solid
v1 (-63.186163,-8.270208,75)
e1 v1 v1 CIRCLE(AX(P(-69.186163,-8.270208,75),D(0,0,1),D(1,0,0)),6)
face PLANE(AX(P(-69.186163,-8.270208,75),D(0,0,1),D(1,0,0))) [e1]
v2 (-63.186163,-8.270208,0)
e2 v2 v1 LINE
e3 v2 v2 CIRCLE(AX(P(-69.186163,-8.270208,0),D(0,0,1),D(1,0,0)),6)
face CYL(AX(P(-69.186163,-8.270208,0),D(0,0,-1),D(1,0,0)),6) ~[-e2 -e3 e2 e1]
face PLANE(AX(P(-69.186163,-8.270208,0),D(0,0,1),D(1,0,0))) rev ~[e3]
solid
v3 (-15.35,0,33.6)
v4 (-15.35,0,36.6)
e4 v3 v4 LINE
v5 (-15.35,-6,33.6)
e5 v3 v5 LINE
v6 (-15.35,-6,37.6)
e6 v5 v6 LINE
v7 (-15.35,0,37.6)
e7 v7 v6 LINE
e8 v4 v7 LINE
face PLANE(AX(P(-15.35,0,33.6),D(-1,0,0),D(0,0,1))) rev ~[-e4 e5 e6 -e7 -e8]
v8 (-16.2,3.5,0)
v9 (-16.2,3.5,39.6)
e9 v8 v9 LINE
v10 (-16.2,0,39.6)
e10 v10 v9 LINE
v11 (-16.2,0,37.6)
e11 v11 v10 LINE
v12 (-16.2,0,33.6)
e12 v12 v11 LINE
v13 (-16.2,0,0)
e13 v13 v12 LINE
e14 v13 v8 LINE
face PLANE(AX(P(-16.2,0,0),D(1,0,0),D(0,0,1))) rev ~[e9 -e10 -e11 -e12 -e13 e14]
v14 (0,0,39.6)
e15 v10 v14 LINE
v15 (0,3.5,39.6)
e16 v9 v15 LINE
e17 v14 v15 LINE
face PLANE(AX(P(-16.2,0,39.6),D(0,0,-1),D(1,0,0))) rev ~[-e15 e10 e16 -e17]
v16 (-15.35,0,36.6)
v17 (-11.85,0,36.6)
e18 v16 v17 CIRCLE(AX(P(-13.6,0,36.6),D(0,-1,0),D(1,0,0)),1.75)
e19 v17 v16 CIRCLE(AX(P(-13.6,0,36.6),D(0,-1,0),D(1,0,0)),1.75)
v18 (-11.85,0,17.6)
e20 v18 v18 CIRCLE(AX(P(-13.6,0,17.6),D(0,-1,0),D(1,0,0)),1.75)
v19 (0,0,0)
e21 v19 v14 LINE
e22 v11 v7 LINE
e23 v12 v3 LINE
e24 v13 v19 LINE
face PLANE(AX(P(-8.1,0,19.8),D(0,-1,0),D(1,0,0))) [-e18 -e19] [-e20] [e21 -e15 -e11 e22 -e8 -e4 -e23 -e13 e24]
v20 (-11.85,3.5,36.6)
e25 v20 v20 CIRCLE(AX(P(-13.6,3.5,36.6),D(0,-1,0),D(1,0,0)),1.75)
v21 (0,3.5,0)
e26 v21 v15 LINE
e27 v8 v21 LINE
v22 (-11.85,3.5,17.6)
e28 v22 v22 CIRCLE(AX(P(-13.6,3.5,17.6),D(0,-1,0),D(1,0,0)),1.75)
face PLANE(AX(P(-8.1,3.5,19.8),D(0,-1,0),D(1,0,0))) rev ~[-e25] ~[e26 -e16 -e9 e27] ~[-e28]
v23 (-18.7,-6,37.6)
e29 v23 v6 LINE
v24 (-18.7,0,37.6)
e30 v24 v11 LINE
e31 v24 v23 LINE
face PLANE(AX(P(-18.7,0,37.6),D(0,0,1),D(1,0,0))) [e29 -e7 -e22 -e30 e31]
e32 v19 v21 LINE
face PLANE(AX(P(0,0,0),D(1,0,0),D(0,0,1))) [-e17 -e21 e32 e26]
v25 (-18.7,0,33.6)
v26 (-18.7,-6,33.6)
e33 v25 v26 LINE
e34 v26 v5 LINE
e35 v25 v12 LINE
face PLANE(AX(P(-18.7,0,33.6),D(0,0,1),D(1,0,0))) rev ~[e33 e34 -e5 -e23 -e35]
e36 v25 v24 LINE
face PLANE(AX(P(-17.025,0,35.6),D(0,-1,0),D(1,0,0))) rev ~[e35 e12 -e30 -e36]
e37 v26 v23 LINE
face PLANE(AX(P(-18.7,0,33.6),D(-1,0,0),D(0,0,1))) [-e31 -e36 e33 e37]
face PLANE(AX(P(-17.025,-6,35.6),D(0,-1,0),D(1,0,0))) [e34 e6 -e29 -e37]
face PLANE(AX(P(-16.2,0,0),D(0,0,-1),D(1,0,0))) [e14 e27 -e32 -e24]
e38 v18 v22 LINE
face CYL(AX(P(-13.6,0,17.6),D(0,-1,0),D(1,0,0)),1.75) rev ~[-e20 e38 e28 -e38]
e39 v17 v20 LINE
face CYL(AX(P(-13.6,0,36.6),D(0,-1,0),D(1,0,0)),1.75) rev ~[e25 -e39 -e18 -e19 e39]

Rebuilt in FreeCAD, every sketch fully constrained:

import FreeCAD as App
import Part
import Sketcher
from FreeCAD import Vector


def add_polygon(sketch, points):
    """Adds a closed chain of lines whose ends are joined by coincident constraints."""
    first, n = sketch.GeometryCount, len(points)
    for a, b in zip(points, points[1:] + points[:1]):
        sketch.addGeometry(Part.LineSegment(App.Vector(*a, 0), App.Vector(*b, 0)), False)
    for i in range(n):
        sketch.addConstraint(Sketcher.Constraint("Coincident", first + i, 2, first + (i + 1) % n, 1))

doc = App.newDocument("Part")
body = doc.addObject("PartDesign::Body", "Body")

# Sketch on XY plane
sketch1 = body.newObject("Sketcher::SketchObject", "Sketch")
sketch1.AttachmentSupport = (doc.getObject("XY_Plane"), [""])
sketch1.MapMode = "FlatFace"
sketch1.addGeometry(Part.Circle(Vector(-69, -8, 0), Vector(0, 0, 1), 6), False)
sketch1.addConstraint(Sketcher.Constraint("Diameter", 0, 12.0))
sketch1.addConstraint(Sketcher.Constraint("DistanceX", 0, 3, -1, 1, 69.186163))
sketch1.addConstraint(Sketcher.Constraint("DistanceY", 0, 3, -1, 1, 8.270208))
pad1 = body.newObject("PartDesign::Pad", "Pad")
pad1.Profile = sketch1
pad1.Length = 75
body2 = doc.addObject("PartDesign::Body", "Body001")

# Sketch on XZ plane
sketch2 = body2.newObject("Sketcher::SketchObject", "Sketch001")
sketch2.AttachmentSupport = (doc.getObject("XZ_Plane001"), [""])
sketch2.MapMode = "FlatFace"
add_polygon(sketch2, [(-16.2, 39.6), (-16.2, 0), (0, 0), (0, 39.6)])  # lines 0-3
sketch2.addGeometry(Part.Circle(Vector(-13.6, 17.6, 0), Vector(0, 0, 1), 1.8), False)  # 4
sketch2.addGeometry(Part.Circle(Vector(-13.6, 36.6, 0), Vector(0, 0, 1), 1.8), False)  # 5
sketch2.addConstraint(Sketcher.Constraint("Vertical", 0))
sketch2.addConstraint(Sketcher.Constraint("Horizontal", 1))
sketch2.addConstraint(Sketcher.Constraint("Vertical", 2))
sketch2.addConstraint(Sketcher.Constraint("Horizontal", 3))
sketch2.addConstraint(Sketcher.Constraint("Coincident", 1, 2, -1, 1))
sketch2.addConstraint(Sketcher.Constraint("Equal", 4, 5))
sketch2.addConstraint(Sketcher.Constraint("Vertical", 4, 3, 5, 3))
sketch2.addConstraint(Sketcher.Constraint("Diameter", 4, 3.5))
sketch2.addConstraint(Sketcher.Constraint("DistanceX", 1, 1, 1, 2, 16.2))
sketch2.addConstraint(Sketcher.Constraint("DistanceY", 0, 2, 0, 1, 39.6))
sketch2.addConstraint(Sketcher.Constraint("DistanceY", 4, 3, 5, 3, 19.0))
sketch2.addConstraint(Sketcher.Constraint("DistanceY", 5, 3, 2, 2, 3.0))
sketch2.addConstraint(Sketcher.Constraint("DistanceX", 4, 3, -1, 1, 13.6))
pad2 = body2.newObject("PartDesign::Pad", "Pad001")
pad2.Profile = sketch2
pad2.Length = 3.5
pad2.Reversed = True

# Sketch on XZ plane
sketch3 = body2.newObject("Sketcher::SketchObject", "Sketch002")
sketch3.AttachmentSupport = (doc.getObject("XZ_Plane001"), [""])
sketch3.MapMode = "FlatFace"
add_polygon(sketch3, [(-18.7, 37.6), (-18.7, 33.6), (-15.3, 33.6), (-15.3, 37.6)])  # lines 0-3
sketch3.addConstraint(Sketcher.Constraint("Vertical", 0))
sketch3.addConstraint(Sketcher.Constraint("Horizontal", 1))
sketch3.addConstraint(Sketcher.Constraint("Vertical", 2))
sketch3.addConstraint(Sketcher.Constraint("Horizontal", 3))
sketch3.addConstraint(Sketcher.Constraint("DistanceY", 0, 2, 0, 1, 4.0))
sketch3.addConstraint(Sketcher.Constraint("DistanceX", 1, 1, 1, 2, 3.35))
sketch3.addConstraint(Sketcher.Constraint("DistanceX", 0, 2, -1, 1, 18.7))
sketch3.addConstraint(Sketcher.Constraint("DistanceY", -1, 1, 0, 2, 33.6))
pad3 = body2.newObject("PartDesign::Pad", "Pad002")
pad3.Profile = sketch3
pad3.Length = 6

doc.recompute()
